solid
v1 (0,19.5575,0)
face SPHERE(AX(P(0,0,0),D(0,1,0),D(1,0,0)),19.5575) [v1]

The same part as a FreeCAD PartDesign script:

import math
import FreeCAD as App
import Part
import Sketcher
Q = App.Units.Quantity

doc = App.newDocument("Part")
body = doc.addObject("PartDesign::Body", "Body")

# Sketch on XY plane
sketch1 = body.newObject("Sketcher::SketchObject", "Sketch")
sketch1.AttachmentSupport = (doc.getObject("XY_Plane"), [""])
sketch1.MapMode = "FlatFace"
sketch1.addGeometry(Part.LineSegment(App.Vector(0, 20, 0), App.Vector(0, -20, 0)), False)
sketch1.addGeometry(Part.ArcOfCircle(Part.Circle(App.Vector(0, 0, 0), App.Vector(0, 0, 1), 20), math.radians(-90), math.radians(90)), False)
sketch1.addConstraint(Sketcher.Constraint("Coincident", 0, 1, 1, 2))
sketch1.addConstraint(Sketcher.Constraint("Coincident", 1, 1, 0, 2))
sketch1.addConstraint(Sketcher.Constraint("Vertical", 0))
sketch1.addConstraint(Sketcher.Constraint("Coincident", 1, 3, -1, 1))
sketch1.addConstraint(Sketcher.Constraint("PointOnObject", 0, 1, -2))
sketch1.addConstraint(Sketcher.Constraint("Radius", 1, Q("19.5575 mm")))
revolution = body.newObject("PartDesign::Revolution", "Revolution")
revolution.Profile = sketch1
revolution.ReferenceAxis = (sketch1, ["V_Axis"])
revolution.Angle = 360

doc.recompute()
